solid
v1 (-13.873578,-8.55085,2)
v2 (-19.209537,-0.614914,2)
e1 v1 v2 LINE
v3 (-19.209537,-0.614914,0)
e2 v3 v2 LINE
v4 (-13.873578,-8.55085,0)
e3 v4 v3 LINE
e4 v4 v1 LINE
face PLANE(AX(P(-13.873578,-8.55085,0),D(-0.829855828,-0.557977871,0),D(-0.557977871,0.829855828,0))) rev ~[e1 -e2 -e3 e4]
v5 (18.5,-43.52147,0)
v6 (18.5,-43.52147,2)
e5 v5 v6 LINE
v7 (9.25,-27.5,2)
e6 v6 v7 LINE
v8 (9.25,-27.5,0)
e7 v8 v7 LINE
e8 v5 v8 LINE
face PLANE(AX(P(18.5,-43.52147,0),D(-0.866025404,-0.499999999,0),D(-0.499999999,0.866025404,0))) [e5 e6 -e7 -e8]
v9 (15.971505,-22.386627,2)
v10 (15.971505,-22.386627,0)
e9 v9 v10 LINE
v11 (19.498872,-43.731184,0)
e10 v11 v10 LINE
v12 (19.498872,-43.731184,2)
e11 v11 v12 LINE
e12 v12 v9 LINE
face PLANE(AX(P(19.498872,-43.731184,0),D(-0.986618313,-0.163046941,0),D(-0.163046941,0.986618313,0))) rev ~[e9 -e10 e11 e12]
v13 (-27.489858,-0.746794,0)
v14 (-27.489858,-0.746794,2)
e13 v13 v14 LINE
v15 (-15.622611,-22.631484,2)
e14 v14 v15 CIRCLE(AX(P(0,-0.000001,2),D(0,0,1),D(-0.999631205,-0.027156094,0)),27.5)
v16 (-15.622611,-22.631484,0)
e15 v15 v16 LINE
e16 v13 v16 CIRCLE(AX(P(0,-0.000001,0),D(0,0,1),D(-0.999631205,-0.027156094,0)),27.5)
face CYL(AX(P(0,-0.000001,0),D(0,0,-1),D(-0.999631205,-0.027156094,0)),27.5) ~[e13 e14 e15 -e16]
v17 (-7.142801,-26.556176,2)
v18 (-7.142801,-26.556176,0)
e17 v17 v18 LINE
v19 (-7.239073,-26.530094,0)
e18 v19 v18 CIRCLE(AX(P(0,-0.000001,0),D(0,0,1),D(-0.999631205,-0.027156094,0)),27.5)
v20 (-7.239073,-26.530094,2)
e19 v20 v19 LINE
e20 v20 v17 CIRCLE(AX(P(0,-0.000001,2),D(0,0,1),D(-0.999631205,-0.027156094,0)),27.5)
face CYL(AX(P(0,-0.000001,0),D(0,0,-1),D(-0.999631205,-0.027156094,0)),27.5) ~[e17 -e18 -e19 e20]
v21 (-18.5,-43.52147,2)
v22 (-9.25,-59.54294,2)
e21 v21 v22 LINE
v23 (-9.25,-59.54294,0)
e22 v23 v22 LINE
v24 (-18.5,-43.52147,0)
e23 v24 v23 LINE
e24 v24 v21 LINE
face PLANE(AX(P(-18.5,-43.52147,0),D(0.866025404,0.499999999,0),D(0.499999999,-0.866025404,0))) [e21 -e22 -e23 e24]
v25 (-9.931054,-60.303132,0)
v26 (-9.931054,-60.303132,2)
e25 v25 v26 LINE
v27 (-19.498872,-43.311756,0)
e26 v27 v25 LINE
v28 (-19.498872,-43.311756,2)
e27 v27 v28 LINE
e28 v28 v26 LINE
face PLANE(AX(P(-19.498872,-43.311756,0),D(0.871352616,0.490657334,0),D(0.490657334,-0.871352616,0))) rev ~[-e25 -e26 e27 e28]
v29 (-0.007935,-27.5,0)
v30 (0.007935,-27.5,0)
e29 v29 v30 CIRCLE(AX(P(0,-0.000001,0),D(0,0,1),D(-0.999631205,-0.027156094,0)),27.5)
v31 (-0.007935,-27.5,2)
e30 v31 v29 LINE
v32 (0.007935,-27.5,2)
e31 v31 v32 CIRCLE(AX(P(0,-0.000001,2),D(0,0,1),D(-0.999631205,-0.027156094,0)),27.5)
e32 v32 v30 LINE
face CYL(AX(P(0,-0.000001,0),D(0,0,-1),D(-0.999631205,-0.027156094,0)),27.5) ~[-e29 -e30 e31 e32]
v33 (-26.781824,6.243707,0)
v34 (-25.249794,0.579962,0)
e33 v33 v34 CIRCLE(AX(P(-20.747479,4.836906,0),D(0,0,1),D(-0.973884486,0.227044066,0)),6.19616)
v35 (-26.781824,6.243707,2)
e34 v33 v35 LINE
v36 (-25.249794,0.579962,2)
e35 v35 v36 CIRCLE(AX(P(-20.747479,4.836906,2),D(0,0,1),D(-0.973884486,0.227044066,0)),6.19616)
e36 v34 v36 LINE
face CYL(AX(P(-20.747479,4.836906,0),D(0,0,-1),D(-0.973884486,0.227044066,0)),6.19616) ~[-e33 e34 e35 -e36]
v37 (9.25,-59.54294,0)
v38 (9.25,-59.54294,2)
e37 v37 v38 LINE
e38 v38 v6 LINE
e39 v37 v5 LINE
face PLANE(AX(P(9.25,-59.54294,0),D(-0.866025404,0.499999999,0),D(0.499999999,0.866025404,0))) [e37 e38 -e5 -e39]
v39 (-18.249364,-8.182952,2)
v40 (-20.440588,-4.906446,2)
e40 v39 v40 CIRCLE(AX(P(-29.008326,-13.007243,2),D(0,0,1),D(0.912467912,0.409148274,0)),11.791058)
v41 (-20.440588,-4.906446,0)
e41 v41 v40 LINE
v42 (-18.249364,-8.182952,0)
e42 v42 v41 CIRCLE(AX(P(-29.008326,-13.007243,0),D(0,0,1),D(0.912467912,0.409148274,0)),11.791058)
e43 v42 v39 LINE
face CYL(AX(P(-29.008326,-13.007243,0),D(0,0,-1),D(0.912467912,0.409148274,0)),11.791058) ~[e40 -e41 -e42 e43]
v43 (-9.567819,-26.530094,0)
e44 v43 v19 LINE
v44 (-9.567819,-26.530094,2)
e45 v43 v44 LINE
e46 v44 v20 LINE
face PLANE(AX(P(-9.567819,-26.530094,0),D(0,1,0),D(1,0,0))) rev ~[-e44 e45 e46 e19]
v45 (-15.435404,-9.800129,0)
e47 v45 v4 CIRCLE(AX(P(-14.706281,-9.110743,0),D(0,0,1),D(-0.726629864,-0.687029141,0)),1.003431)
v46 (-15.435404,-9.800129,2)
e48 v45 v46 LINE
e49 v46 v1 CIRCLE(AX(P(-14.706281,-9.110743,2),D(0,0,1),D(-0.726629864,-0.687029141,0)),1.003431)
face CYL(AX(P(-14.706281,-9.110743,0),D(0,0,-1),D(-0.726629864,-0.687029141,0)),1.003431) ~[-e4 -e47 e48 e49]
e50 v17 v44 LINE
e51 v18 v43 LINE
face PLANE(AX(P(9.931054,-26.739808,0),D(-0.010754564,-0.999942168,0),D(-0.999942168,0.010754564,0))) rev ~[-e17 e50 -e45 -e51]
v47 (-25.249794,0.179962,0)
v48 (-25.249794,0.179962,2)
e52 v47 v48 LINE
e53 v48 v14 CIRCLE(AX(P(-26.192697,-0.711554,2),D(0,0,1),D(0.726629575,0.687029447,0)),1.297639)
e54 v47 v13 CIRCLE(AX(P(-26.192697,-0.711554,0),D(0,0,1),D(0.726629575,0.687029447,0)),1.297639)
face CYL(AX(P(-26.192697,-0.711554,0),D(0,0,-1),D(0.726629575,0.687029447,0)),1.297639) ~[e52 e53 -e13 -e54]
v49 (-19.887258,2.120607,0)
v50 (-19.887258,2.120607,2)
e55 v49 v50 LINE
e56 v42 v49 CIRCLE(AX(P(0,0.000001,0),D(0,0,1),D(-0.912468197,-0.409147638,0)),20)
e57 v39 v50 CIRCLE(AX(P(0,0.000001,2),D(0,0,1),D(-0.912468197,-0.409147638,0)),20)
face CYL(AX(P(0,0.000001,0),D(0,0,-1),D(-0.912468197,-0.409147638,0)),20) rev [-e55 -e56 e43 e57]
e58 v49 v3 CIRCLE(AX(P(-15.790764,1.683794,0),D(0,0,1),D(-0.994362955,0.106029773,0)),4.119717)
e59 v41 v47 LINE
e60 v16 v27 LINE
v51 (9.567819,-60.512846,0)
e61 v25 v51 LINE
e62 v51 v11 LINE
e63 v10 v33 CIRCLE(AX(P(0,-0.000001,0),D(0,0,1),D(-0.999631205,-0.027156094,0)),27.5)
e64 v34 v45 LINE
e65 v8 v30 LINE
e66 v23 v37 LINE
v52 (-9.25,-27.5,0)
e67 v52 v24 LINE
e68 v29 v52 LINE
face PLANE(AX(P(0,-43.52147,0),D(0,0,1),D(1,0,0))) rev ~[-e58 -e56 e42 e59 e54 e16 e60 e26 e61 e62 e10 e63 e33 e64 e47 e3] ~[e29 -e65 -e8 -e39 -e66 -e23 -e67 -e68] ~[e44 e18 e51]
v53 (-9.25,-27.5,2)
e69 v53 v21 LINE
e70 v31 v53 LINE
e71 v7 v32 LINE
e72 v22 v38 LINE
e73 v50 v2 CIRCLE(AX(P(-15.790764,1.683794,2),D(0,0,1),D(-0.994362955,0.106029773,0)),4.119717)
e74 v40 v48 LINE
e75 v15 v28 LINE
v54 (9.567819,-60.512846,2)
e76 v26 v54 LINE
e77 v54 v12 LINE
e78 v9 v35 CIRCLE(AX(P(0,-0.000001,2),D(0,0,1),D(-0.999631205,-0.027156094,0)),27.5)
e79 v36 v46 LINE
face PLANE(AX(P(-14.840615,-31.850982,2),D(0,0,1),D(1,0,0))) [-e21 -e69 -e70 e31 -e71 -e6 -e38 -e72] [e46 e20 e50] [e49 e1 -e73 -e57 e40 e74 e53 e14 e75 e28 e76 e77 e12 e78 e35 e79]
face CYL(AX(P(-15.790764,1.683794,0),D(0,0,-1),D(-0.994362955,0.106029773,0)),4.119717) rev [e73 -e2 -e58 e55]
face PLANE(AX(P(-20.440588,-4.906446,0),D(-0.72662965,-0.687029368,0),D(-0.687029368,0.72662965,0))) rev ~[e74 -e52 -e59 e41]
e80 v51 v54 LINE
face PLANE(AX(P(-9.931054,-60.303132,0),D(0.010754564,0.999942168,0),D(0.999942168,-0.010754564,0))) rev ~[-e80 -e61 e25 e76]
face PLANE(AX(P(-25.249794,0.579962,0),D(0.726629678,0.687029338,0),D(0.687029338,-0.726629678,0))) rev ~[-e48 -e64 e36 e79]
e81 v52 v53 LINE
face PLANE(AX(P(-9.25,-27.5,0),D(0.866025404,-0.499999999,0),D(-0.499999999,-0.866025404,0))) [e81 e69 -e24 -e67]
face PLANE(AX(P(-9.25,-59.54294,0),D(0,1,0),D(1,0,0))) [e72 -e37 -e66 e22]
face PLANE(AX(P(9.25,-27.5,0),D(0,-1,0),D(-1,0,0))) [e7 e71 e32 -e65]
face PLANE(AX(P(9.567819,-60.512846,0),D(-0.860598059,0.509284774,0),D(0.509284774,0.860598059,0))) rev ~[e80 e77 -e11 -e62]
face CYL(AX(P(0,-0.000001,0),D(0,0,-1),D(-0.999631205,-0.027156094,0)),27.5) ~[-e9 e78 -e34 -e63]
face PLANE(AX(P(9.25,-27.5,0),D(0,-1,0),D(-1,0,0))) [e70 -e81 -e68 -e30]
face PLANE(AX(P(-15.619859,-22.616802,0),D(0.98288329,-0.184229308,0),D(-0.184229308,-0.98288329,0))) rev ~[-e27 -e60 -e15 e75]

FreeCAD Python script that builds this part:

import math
import FreeCAD as App
import Part
import Sketcher

V = App.Vector
Q = App.Units.Quantity

doc = App.newDocument("Part")
body = doc.addObject("PartDesign::Body", "Body")

# Sketch on XY plane
sketch1 = doc.addObject("Sketcher::SketchObject", "Sketch")
body.addObject(sketch1)
sketch1.AttachmentSupport = (doc.XY_Plane, [""])
sketch1.MapMode = "FlatFace"
sketch1.addGeometry([
    Part.ArcOfCircle(Part.Circle(V(0, -0.000001, 0), V(0, 0, 1), 27.5), math.radians(-178.443879), math.radians(166.876901)),  # 0
    Part.ArcOfCircle(Part.Circle(V(-20.747479, 4.836906, 0), V(0, 0, 1), 6.19616), math.radians(166.876894), math.radians(223.395406)),  # 1
    Part.LineSegment(V(-25.249794, 0.579962, 0), V(-15.435404, -9.800129, 0)),  # 2
    Part.ArcOfCircle(Part.Circle(V(-14.706281, -9.110743, 0), V(0, 0, 1), 1.003431), math.radians(-136.604603), math.radians(33.916085)),  # 3
    Part.LineSegment(V(-13.873578, -8.55085, 0), V(-19.209537, -0.614914, 0)),  # 4
    Part.ArcOfCircle(Part.Circle(V(-15.790764, 1.683794, 0), V(0, 0, 1), 4.119717), math.radians(173.913501), math.radians(213.916023)),  # 5
    Part.ArcOfCircle(Part.Circle(V(0, 0.000001, 0), V(0, 0, 1), 20), math.radians(-155.848698), math.radians(173.913469)),  # 6
    Part.ArcOfCircle(Part.Circle(V(-29.008326, -13.007243, 0), V(0, 0, 1), 11.791058), math.radians(24.151342), math.radians(43.395375)),  # 7
    Part.LineSegment(V(-20.440588, -4.906446, 0), V(-25.249794, 0.179962, 0)),  # 8
    Part.ArcOfCircle(Part.Circle(V(-26.192697, -0.711554, 0), V(0, 0, 1), 1.297639), math.radians(43.395421), math.radians(181.556152)),  # 9
], False)
sketch1.addConstraint([
    Sketcher.Constraint("Coincident", 0, 2, 1, 1),
    Sketcher.Constraint("Coincident", 1, 2, 2, 1),
    Sketcher.Constraint("Coincident", 2, 2, 3, 1),
    Sketcher.Constraint("Coincident", 3, 2, 4, 1),
    Sketcher.Constraint("Coincident", 4, 2, 5, 2),
    Sketcher.Constraint("Coincident", 5, 1, 6, 2),
    Sketcher.Constraint("Coincident", 6, 1, 7, 1),
    Sketcher.Constraint("Coincident", 7, 2, 8, 1),
    Sketcher.Constraint("Coincident", 8, 2, 9, 1),
    Sketcher.Constraint("Coincident", 9, 2, 0, 1),
    Sketcher.Constraint("Coincident", 0, 3, -1, 1),
    Sketcher.Constraint("Coincident", 6, 3, -1, 1),
    Sketcher.Constraint("Radius", 6, 20.0),
    Sketcher.Constraint("Radius", 0, 27.5),
    Sketcher.Constraint("Distance", 8, 7.000001),
    Sketcher.Constraint("DistanceY", 8, 2, 1, 2, 0.4),
    Sketcher.Constraint("Radius", 1, 6.19616),
    Sketcher.Constraint("Radius", 3, 1.003431),
    Sketcher.Constraint("Radius", 9, 1.297639),
    Sketcher.Constraint("Radius", 5, 4.119717),
    Sketcher.Constraint("Radius", 7, 11.791058),
    Sketcher.Constraint("DistanceX", 1, 3, 3, 3, 6.041198),
    Sketcher.Constraint("DistanceY", 7, 3, 3, 3, 3.8965),
    Sketcher.Constraint("DistanceY", 1, 3, 0, 2, 1.406801),
    Sketcher.Constraint("DistanceX", 7, 3, 0, 2, 2.226502),
    Sketcher.Constraint("DistanceY", 5, 1, 1, 3, 2.716299),
    Sketcher.Constraint("DistanceY", 3, 2, 6, 1, 0.367898),
    Sketcher.Constraint("DistanceX", 6, 1, 5, 3, 2.4586),
    Sketcher.Constraint("DistanceY", 9, 2, 0, 2, 6.990501),
    Sketcher.Constraint("DistanceX", 9, 2, 5, 1, 7.6026),
    Sketcher.Constraint("Distance", 4, 9.56303),
    Sketcher.Constraint("DistanceY", 2, 2, -1, 1, 9.800129),
    Sketcher.Constraint("DistanceX", 3, 2, -1, 1, 13.873578),
    Sketcher.Constraint("DistanceX", 7, 2, -1, 1, 20.440588),
    Sketcher.Constraint("DistanceY", 9, 3, 1, 3, 5.54846),
])
pad1 = doc.addObject("PartDesign::Pad", "Pad")
body.addObject(pad1)
pad1.Profile = sketch1
pad1.Length = 2

# Sketch on XY plane
sketch2 = doc.addObject("Sketcher::SketchObject", "Sketch001")
body.addObject(sketch2)
sketch2.AttachmentSupport = (doc.XY_Plane, [""])
sketch2.MapMode = "FlatFace"
sketch2.addGeometry([
    Part.LineSegment(V(19, -44, 0), V(10, -27, 0)),  # 0
    Part.LineSegment(V(10, -27, 0), V(-10, -27, 0)),  # 1
    Part.LineSegment(V(-10, -27, 0), V(-19, -43, 0)),  # 2
    Part.LineSegment(V(-19, -43, 0), V(-10, -60, 0)),  # 3
    Part.LineSegment(V(-10, -60, 0), V(10, -61, 0)),  # 4
    Part.LineSegment(V(10, -61, 0), V(19, -44, 0)),  # 5
    Part.LineSegment(V(9, -28, 0), V(18, -44, 0)),  # 6
    Part.LineSegment(V(18, -44, 0), V(9, -60, 0)),  # 7
    Part.LineSegment(V(9, -60, 0), V(-9, -60, 0)),  # 8
    Part.LineSegment(V(-9, -60, 0), V(-18, -44, 0)),  # 9
    Part.LineSegment(V(-18, -44, 0), V(-9, -28, 0)),  # 10
    Part.LineSegment(V(-9, -28, 0), V(9, -28, 0)),  # 11
], False)
sketch2.addConstraint([
    Sketcher.Constraint("Coincident", 0, 2, 1, 1),
    Sketcher.Constraint("Coincident", 1, 2, 2, 1),
    Sketcher.Constraint("Coincident", 2, 2, 3, 1),
    Sketcher.Constraint("Coincident", 3, 2, 4, 1),
    Sketcher.Constraint("Coincident", 4, 2, 5, 1),
    Sketcher.Constraint("Coincident", 5, 2, 0, 1),
    Sketcher.Constraint("Coincident", 6, 2, 7, 1),
    Sketcher.Constraint("Coincident", 7, 2, 8, 1),
    Sketcher.Constraint("Coincident", 8, 2, 9, 1),
    Sketcher.Constraint("Coincident", 9, 2, 10, 1),
    Sketcher.Constraint("Coincident", 10, 2, 11, 1),
    Sketcher.Constraint("Coincident", 11, 2, 6, 1),
    Sketcher.Constraint("Horizontal", 8),
    Sketcher.Constraint("Horizontal", 11),
    Sketcher.Constraint("Symmetric", 6, 2, 9, 2, -2),
    Sketcher.Constraint("Parallel", 0, 3),
    Sketcher.Constraint("Parallel", 1, 4),
    Sketcher.Constraint("Parallel", 2, 5),
    Sketcher.Constraint("Parallel", 6, 9),
    Sketcher.Constraint("Parallel", 7, 10),
    Sketcher.Constraint("Vertical", 8, 2, 10, 2),
    Sketcher.Constraint("Vertical", 7, 2, 11, 2),
    Sketcher.Constraint("Equal", 0, 1),
    Sketcher.Constraint("Equal", 1, 2),
    Sketcher.Constraint("Equal", 2, 3),
    Sketcher.Constraint("Angle", 6, Q("-60 deg")),
    Sketcher.Constraint("DistanceX", 8, 2, 8, 1, 18.5),
    Sketcher.Constraint("Distance", 0, 19.5),
    Sketcher.Constraint("Distance", 6, 18.5),
    Sketcher.Constraint("DistanceY", 10, 2, -1, 1, 27.5),
    Sketcher.Constraint("DistanceY", 0, 2, -1, 1, 26.739808),
    Sketcher.Constraint("DistanceX", 1, 2, -1, 1, 9.567819),
    Sketcher.Constraint("DistanceX", 2, 2, -1, 1, 19.498872),
    Sketcher.Constraint("DistanceY", 3, 2, -1, 1, 60.303132),
    Sketcher.Constraint("DistanceX", -1, 1, 4, 2, 9.567819),
])
pad2 = doc.addObject("PartDesign::Pad", "Pad001")
body.addObject(pad2)
pad2.Profile = sketch2
pad2.Length = 2

# Sketch on XY plane
sketch3 = doc.addObject("Sketcher::SketchObject", "Sketch002")
body.addObject(sketch3)
sketch3.AttachmentSupport = (doc.XY_Plane, [""])
sketch3.MapMode = "FlatFace"
sketch3.addGeometry([
    Part.LineSegment(V(-15.6, -22.6, 0), V(-19.5, -43.3, 0)),  # 0
    Part.LineSegment(V(-19.5, -43.3, 0), V(-9.6, -26.5, 0)),  # 1
    Part.LineSegment(V(-9.6, -26.5, 0), V(-6.9, -26.5, 0)),  # 2
    Part.LineSegment(V(-6.9, -26.5, 0), V(-15.6, -22.6, 0)),  # 3
    Part.LineSegment(V(19.5, -43.7, 0), V(16, -22.4, 0)),  # 4
    Part.LineSegment(V(16, -22.4, 0), V(6.6, -26.7, 0)),  # 5
    Part.LineSegment(V(6.6, -26.7, 0), V(9.9, -26.7, 0)),  # 6
    Part.LineSegment(V(9.9, -26.7, 0), V(19.5, -43.7, 0)),  # 7
], False)
sketch3.addConstraint([
    Sketcher.Constraint("Coincident", 0, 2, 1, 1),
    Sketcher.Constraint("Coincident", 1, 2, 2, 1),
    Sketcher.Constraint("Coincident", 2, 2, 3, 1),
    Sketcher.Constraint("Coincident", 3, 2, 0, 1),
    Sketcher.Constraint("Coincident", 4, 2, 5, 1),
    Sketcher.Constraint("Coincident", 5, 2, 6, 1),
    Sketcher.Constraint("Coincident", 6, 2, 7, 1),
    Sketcher.Constraint("Coincident", 7, 2, 4, 1),
    Sketcher.Constraint("Horizontal", 2),
    Sketcher.Constraint("Equal", 1, 7),
    Sketcher.Constraint("Distance", 1, 19.5),
    Sketcher.Constraint("DistanceY", 3, 2, -1, 1, 22.616802),
    Sketcher.Constraint("Distance", 3, 9.523621),
    Sketcher.Constraint("Distance", 4, 21.634058),
    Sketcher.Constraint("DistanceX", 2, 1, 2, 2, 2.630443),
    Sketcher.Constraint("DistanceX", 0, 2, -1, 1, 19.498872),
    Sketcher.Constraint("DistanceX", 1, 2, -1, 1, 9.567819),
    Sketcher.Constraint("DistanceX", 3, 2, -1, 1, 15.619859),
    Sketcher.Constraint("DistanceY", 5, 2, -1, 1, 26.703659),
    Sketcher.Constraint("DistanceY", 6, 2, -1, 1, 26.739808),
    Sketcher.Constraint("DistanceX", -1, 1, 7, 2, 19.498872),
    Sketcher.Constraint("DistanceX", 2, 2, 4, 2, 22.908881),
    Sketcher.Constraint("DistanceY", 0, 2, 4, 2, 20.92513),
    Sketcher.Constraint("DistanceX", 5, 2, 4, 2, 9.401529),
])
pad3 = doc.addObject("PartDesign::Pad", "Pad002")
body.addObject(pad3)
pad3.Profile = sketch3
pad3.Length = 2

doc.recompute()
